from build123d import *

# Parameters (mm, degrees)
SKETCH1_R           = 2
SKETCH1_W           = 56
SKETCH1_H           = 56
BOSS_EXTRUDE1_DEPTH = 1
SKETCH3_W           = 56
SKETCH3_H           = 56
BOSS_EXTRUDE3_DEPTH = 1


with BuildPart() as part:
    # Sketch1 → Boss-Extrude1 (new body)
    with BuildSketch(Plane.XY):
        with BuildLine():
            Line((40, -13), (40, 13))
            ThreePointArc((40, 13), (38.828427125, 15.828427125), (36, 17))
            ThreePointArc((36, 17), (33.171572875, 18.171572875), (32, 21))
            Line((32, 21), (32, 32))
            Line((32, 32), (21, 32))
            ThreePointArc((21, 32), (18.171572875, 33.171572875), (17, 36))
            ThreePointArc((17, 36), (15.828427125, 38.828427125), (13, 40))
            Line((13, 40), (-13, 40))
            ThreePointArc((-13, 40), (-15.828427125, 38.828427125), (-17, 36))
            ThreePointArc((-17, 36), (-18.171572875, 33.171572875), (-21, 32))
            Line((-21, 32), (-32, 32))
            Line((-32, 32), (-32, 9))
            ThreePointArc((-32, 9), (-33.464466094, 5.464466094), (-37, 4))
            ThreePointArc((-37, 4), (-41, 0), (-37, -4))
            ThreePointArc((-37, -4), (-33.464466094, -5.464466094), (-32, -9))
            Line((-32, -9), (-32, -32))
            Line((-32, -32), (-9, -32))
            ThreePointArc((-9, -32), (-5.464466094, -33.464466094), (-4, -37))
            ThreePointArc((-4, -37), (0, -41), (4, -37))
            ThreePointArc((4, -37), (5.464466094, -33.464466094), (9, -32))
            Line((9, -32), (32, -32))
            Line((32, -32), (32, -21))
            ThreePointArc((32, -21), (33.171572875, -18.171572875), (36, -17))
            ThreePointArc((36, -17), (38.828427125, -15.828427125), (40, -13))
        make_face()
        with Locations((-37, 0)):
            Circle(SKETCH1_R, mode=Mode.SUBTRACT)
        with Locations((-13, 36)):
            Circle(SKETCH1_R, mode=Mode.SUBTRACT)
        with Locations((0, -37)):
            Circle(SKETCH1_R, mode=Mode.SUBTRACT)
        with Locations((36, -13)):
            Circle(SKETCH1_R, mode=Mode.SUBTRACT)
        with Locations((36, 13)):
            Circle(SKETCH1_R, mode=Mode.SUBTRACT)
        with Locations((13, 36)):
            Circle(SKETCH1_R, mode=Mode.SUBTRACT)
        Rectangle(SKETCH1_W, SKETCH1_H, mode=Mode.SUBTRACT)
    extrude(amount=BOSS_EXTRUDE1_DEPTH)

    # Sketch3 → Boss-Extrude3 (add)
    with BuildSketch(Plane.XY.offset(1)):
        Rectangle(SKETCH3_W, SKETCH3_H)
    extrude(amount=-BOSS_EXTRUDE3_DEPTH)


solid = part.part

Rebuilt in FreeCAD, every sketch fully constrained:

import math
import FreeCAD as App
import Part
import Sketcher
from FreeCAD import Vector
Q = App.Units.Quantity


def add_polygon(sketch, points):
    """Adds a closed chain of lines whose ends are joined by coincident constraints."""
    first, n = sketch.GeometryCount, len(points)
    for a, b in zip(points, points[1:] + points[:1]):
        sketch.addGeometry(Part.LineSegment(App.Vector(*a, 0), App.Vector(*b, 0)), False)
    for i in range(n):
        sketch.addConstraint(Sketcher.Constraint("Coincident", first + i, 2, first + (i + 1) % n, 1))

doc = App.newDocument("Part")
params = doc.addObject("Spreadsheet::Sheet", "Params")
for row, (alias, value) in enumerate([
    ("sketch1_diameter", "4 mm"),
    ("sketch1_radius", "4 mm"),
    ("sketch1_radius2", "5 mm"),
    ("sketch1_width", "11 mm"),
    ("sketch1_width2", "26 mm"),
    ("pad1_length", "1 mm"),
    ("sketch2_width", "56 mm"),
    ("pad2_length", "1 mm"),
], start=1):
    params.set(f"A{row}", alias)
    params.set(f"B{row}", "=" + value)
    params.setAlias(f"B{row}", alias)

body = doc.addObject("PartDesign::Body", "Body")

# Sketch on XY plane
sketch1 = doc.addObject("Sketcher::SketchObject", "Sketch")
body.addObject(sketch1)
sketch1.AttachmentSupport = (doc.XY_Plane, [""])
sketch1.MapMode = "FlatFace"
sketch1.addGeometry(Part.LineSegment(Vector(40, -13, 0), Vector(40, 13, 0)), False)  # 0
sketch1.addGeometry(Part.ArcOfCircle(Part.Circle(Vector(36, 13, 0), Vector(0, 0, 1), 4), math.radians(0), math.radians(90)), False)  # 1
sketch1.addGeometry(Part.ArcOfCircle(Part.Circle(Vector(36, 21, 0), Vector(0, 0, 1), 4), math.radians(180), math.radians(270)), False)  # 2
sketch1.addGeometry(Part.LineSegment(Vector(32, 21, 0), Vector(32, 32, 0)), False)  # 3
sketch1.addGeometry(Part.LineSegment(Vector(32, 32, 0), Vector(21, 32, 0)), False)  # 4
sketch1.addGeometry(Part.ArcOfCircle(Part.Circle(Vector(21, 36, 0), Vector(0, 0, 1), 4), math.radians(180), math.radians(270)), False)  # 5
sketch1.addGeometry(Part.ArcOfCircle(Part.Circle(Vector(13, 36, 0), Vector(0, 0, 1), 4), math.radians(0), math.radians(90)), False)  # 6
sketch1.addGeometry(Part.LineSegment(Vector(13, 40, 0), Vector(-13, 40, 0)), False)  # 7
sketch1.addGeometry(Part.ArcOfCircle(Part.Circle(Vector(-13, 36, 0), Vector(0, 0, 1), 4), math.radians(90), math.radians(180)), False)  # 8
sketch1.addGeometry(Part.ArcOfCircle(Part.Circle(Vector(-21, 36, 0), Vector(0, 0, 1), 4), math.radians(-90), math.radians(0)), False)  # 9
sketch1.addGeometry(Part.LineSegment(Vector(-21, 32, 0), Vector(-32, 32, 0)), False)  # 10
sketch1.addGeometry(Part.LineSegment(Vector(-32, 32, 0), Vector(-32, 9, 0)), False)  # 11
sketch1.addGeometry(Part.ArcOfCircle(Part.Circle(Vector(-37, 9, 0), Vector(0, 0, 1), 5), math.radians(-90), math.radians(0)), False)  # 12
sketch1.addGeometry(Part.ArcOfCircle(Part.Circle(Vector(-37, 0, 0), Vector(0, 0, 1), 4), math.radians(90), math.radians(270)), False)  # 13
sketch1.addGeometry(Part.ArcOfCircle(Part.Circle(Vector(-37, -9, 0), Vector(0, 0, 1), 5), math.radians(0), math.radians(90)), False)  # 14
sketch1.addGeometry(Part.LineSegment(Vector(-32, -9, 0), Vector(-32, -32, 0)), False)  # 15
sketch1.addGeometry(Part.LineSegment(Vector(-32, -32, 0), Vector(-9, -32, 0)), False)  # 16
sketch1.addGeometry(Part.ArcOfCircle(Part.Circle(Vector(-9, -37, 0), Vector(0, 0, 1), 5), math.radians(0), math.radians(90)), False)  # 17
sketch1.addGeometry(Part.ArcOfCircle(Part.Circle(Vector(0, -37, 0), Vector(0, 0, 1), 4), math.radians(180), math.radians(360)), False)  # 18
sketch1.addGeometry(Part.ArcOfCircle(Part.Circle(Vector(9, -37, 0), Vector(0, 0, 1), 5), math.radians(90), math.radians(180)), False)  # 19
sketch1.addGeometry(Part.LineSegment(Vector(9, -32, 0), Vector(32, -32, 0)), False)  # 20
sketch1.addGeometry(Part.LineSegment(Vector(32, -32, 0), Vector(32, -21, 0)), False)  # 21
sketch1.addGeometry(Part.ArcOfCircle(Part.Circle(Vector(36, -21, 0), Vector(0, 0, 1), 4), math.radians(90), math.radians(180)), False)  # 22
sketch1.addGeometry(Part.ArcOfCircle(Part.Circle(Vector(36, -13, 0), Vector(0, 0, 1), 4), math.radians(-90), math.radians(0)), False)  # 23
sketch1.addGeometry(Part.Circle(Vector(0, -37, 0), Vector(0, 0, 1), 2), False)  # 24
sketch1.addGeometry(Part.Circle(Vector(36, -13, 0), Vector(0, 0, 1), 2), False)  # 25
sketch1.addGeometry(Part.Circle(Vector(-37, 0, 0), Vector(0, 0, 1), 2), False)  # 26
sketch1.addGeometry(Part.Circle(Vector(-13, 36, 0), Vector(0, 0, 1), 2), False)  # 27
add_polygon(sketch1, [(28, -28), (-28, -28), (-28, 28), (28, 28)])  # lines 28-31
sketch1.addGeometry(Part.Circle(Vector(36, 13, 0), Vector(0, 0, 1), 2), False)  # 32
sketch1.addGeometry(Part.Circle(Vector(13, 36, 0), Vector(0, 0, 1), 2), False)  # 33
sketch1.addConstraint([
    Sketcher.Constraint("Tangent", 0, 2, 1, 1),
    Sketcher.Constraint("Tangent", 1, 2, 2, 2),
    Sketcher.Constraint("Tangent", 2, 1, 3, 1),
    Sketcher.Constraint("Coincident", 3, 2, 4, 1),
    Sketcher.Constraint("Tangent", 4, 2, 5, 2),
    Sketcher.Constraint("Tangent", 5, 1, 6, 1),
    Sketcher.Constraint("Tangent", 6, 2, 7, 1),
    Sketcher.Constraint("Tangent", 7, 2, 8, 1),
    Sketcher.Constraint("Tangent", 8, 2, 9, 2),
    Sketcher.Constraint("Tangent", 9, 1, 10, 1),
    Sketcher.Constraint("Coincident", 10, 2, 11, 1),
    Sketcher.Constraint("Tangent", 11, 2, 12, 2),
    Sketcher.Constraint("Tangent", 12, 1, 13, 1),
    Sketcher.Constraint("Tangent", 13, 2, 14, 2),
    Sketcher.Constraint("Tangent", 14, 1, 15, 1),
    Sketcher.Constraint("Coincident", 15, 2, 16, 1),
    Sketcher.Constraint("Tangent", 16, 2, 17, 2),
    Sketcher.Constraint("Tangent", 17, 1, 18, 1),
    Sketcher.Constraint("Tangent", 18, 2, 19, 2),
    Sketcher.Constraint("Tangent", 19, 1, 20, 1),
    Sketcher.Constraint("Coincident", 20, 2, 21, 1),
    Sketcher.Constraint("Tangent", 21, 2, 22, 2),
    Sketcher.Constraint("Tangent", 22, 1, 23, 1),
    Sketcher.Constraint("Tangent", 23, 2, 0, 1),
    Sketcher.Constraint("Vertical", 0),
    Sketcher.Constraint("Vertical", 3),
    Sketcher.Constraint("Horizontal", 4),
    Sketcher.Constraint("Horizontal", 7),
    Sketcher.Constraint("Horizontal", 10),
    Sketcher.Constraint("Vertical", 11),
    Sketcher.Constraint("Vertical", 15),
    Sketcher.Constraint("Horizontal", 16),
    Sketcher.Constraint("Horizontal", 20),
    Sketcher.Constraint("Vertical", 21),
    Sketcher.Constraint("Horizontal", 28),
    Sketcher.Constraint("Vertical", 29),
    Sketcher.Constraint("Horizontal", 30),
    Sketcher.Constraint("Vertical", 31),
    Sketcher.Constraint("Coincident", 24, 3, 18, 3),
    Sketcher.Constraint("Coincident", 25, 3, 23, 3),
    Sketcher.Constraint("Coincident", 26, 3, 13, 3),
    Sketcher.Constraint("Coincident", 27, 3, 8, 3),
    Sketcher.Constraint("Coincident", 32, 3, 1, 3),
    Sketcher.Constraint("Coincident", 33, 3, 6, 3),
    Sketcher.Constraint("Equal", 1, 2),
    Sketcher.Constraint("Equal", 2, 5),
    Sketcher.Constraint("Equal", 5, 6),
    Sketcher.Constraint("Equal", 6, 8),
    Sketcher.Constraint("Equal", 8, 9),
    Sketcher.Constraint("Equal", 9, 13),
    Sketcher.Constraint("Equal", 12, 14),
    Sketcher.Constraint("Equal", 14, 17),
    Sketcher.Constraint("Equal", 13, 18),
    Sketcher.Constraint("Equal", 17, 19),
    Sketcher.Constraint("Equal", 18, 22),
    Sketcher.Constraint("Equal", 22, 23),
    Sketcher.Constraint("Equal", 24, 25),
    Sketcher.Constraint("Equal", 25, 26),
    Sketcher.Constraint("Equal", 26, 27),
    Sketcher.Constraint("Equal", 27, 32),
    Sketcher.Constraint("Equal", 32, 33),
    Sketcher.Constraint("Symmetric", 3, 2, 15, 2, -1, 1),
    Sketcher.Constraint("Symmetric", 10, 2, 20, 2, -1, 1),
    Sketcher.Constraint("Symmetric", 28, 2, 30, 2, -1, 1),
    Sketcher.Constraint("Symmetric", 5, 3, 9, 3, -2),
    Sketcher.Constraint("Symmetric", 12, 3, 14, 3, -1),
    Sketcher.Constraint("PointOnObject", 18, 3, -2),
    Sketcher.Constraint("Horizontal", 5, 3, 6, 3),
    Sketcher.Constraint("Horizontal", 17, 3, 18, 3),
    Sketcher.Constraint("Vertical", 1, 3, 2, 3),
    Sketcher.Constraint("Vertical", 12, 3, 13, 3),
    Sketcher.Constraint("Equal", 7, 0),
    Sketcher.Constraint("Equal", 10, 3),
    Sketcher.Constraint("Equal", 20, 11),
    Sketcher.Constraint("Equal", 30, 29),
    Sketcher.Constraint("Diameter", 24, Q("4 mm")),
    Sketcher.Constraint("Radius", 1, Q("4 mm")),
    Sketcher.Constraint("Radius", 12, Q("5 mm")),
    Sketcher.Constraint("DistanceX", 4, 2, 4, 1, Q("11 mm")),
    Sketcher.Constraint("DistanceX", 7, 2, 7, 1, Q("26 mm")),
    Sketcher.Constraint("DistanceX", 28, 2, 28, 1, Q("56 mm")),
])
sketch1.setExpression("Constraints[79]", "Params.sketch1_diameter")
sketch1.setExpression("Constraints[80]", "Params.sketch1_radius")
sketch1.setExpression("Constraints[81]", "Params.sketch1_radius2")
sketch1.setExpression("Constraints[82]", "Params.sketch1_width")
sketch1.setExpression("Constraints[83]", "Params.sketch1_width2")
pad1 = doc.addObject("PartDesign::Pad", "Pad")
body.addObject(pad1)
pad1.Profile = sketch1
pad1.setExpression("Length", "Params.pad1_length")

# Sketch on XY plane
sketch2 = doc.addObject("Sketcher::SketchObject", "Sketch001")
body.addObject(sketch2)
sketch2.AttachmentSupport = (doc.XY_Plane, [""])
sketch2.MapMode = "FlatFace"
sketch2.AttachmentOffset = App.Placement(Vector(0, 0, 1), App.Rotation())
add_polygon(sketch2, [(-28, 28), (-28, -28), (28, -28), (28, 28)])  # lines 0-3
sketch2.addConstraint([
    Sketcher.Constraint("Vertical", 0),
    Sketcher.Constraint("Horizontal", 1),
    Sketcher.Constraint("Vertical", 2),
    Sketcher.Constraint("Horizontal", 3),
    Sketcher.Constraint("Symmetric", 0, 2, 2, 2, -1, 1),
    Sketcher.Constraint("Equal", 3, 0),
    Sketcher.Constraint("DistanceX", 1, 1, 1, 2, Q("56 mm")),
])
sketch2.setExpression("Constraints[10]", "Params.sketch2_width")
pad2 = doc.addObject("PartDesign::Pad", "Pad001")
body.addObject(pad2)
pad2.Profile = sketch2
pad2.setExpression("Length", "Params.pad2_length")
pad2.Reversed = True

doc.recompute()
